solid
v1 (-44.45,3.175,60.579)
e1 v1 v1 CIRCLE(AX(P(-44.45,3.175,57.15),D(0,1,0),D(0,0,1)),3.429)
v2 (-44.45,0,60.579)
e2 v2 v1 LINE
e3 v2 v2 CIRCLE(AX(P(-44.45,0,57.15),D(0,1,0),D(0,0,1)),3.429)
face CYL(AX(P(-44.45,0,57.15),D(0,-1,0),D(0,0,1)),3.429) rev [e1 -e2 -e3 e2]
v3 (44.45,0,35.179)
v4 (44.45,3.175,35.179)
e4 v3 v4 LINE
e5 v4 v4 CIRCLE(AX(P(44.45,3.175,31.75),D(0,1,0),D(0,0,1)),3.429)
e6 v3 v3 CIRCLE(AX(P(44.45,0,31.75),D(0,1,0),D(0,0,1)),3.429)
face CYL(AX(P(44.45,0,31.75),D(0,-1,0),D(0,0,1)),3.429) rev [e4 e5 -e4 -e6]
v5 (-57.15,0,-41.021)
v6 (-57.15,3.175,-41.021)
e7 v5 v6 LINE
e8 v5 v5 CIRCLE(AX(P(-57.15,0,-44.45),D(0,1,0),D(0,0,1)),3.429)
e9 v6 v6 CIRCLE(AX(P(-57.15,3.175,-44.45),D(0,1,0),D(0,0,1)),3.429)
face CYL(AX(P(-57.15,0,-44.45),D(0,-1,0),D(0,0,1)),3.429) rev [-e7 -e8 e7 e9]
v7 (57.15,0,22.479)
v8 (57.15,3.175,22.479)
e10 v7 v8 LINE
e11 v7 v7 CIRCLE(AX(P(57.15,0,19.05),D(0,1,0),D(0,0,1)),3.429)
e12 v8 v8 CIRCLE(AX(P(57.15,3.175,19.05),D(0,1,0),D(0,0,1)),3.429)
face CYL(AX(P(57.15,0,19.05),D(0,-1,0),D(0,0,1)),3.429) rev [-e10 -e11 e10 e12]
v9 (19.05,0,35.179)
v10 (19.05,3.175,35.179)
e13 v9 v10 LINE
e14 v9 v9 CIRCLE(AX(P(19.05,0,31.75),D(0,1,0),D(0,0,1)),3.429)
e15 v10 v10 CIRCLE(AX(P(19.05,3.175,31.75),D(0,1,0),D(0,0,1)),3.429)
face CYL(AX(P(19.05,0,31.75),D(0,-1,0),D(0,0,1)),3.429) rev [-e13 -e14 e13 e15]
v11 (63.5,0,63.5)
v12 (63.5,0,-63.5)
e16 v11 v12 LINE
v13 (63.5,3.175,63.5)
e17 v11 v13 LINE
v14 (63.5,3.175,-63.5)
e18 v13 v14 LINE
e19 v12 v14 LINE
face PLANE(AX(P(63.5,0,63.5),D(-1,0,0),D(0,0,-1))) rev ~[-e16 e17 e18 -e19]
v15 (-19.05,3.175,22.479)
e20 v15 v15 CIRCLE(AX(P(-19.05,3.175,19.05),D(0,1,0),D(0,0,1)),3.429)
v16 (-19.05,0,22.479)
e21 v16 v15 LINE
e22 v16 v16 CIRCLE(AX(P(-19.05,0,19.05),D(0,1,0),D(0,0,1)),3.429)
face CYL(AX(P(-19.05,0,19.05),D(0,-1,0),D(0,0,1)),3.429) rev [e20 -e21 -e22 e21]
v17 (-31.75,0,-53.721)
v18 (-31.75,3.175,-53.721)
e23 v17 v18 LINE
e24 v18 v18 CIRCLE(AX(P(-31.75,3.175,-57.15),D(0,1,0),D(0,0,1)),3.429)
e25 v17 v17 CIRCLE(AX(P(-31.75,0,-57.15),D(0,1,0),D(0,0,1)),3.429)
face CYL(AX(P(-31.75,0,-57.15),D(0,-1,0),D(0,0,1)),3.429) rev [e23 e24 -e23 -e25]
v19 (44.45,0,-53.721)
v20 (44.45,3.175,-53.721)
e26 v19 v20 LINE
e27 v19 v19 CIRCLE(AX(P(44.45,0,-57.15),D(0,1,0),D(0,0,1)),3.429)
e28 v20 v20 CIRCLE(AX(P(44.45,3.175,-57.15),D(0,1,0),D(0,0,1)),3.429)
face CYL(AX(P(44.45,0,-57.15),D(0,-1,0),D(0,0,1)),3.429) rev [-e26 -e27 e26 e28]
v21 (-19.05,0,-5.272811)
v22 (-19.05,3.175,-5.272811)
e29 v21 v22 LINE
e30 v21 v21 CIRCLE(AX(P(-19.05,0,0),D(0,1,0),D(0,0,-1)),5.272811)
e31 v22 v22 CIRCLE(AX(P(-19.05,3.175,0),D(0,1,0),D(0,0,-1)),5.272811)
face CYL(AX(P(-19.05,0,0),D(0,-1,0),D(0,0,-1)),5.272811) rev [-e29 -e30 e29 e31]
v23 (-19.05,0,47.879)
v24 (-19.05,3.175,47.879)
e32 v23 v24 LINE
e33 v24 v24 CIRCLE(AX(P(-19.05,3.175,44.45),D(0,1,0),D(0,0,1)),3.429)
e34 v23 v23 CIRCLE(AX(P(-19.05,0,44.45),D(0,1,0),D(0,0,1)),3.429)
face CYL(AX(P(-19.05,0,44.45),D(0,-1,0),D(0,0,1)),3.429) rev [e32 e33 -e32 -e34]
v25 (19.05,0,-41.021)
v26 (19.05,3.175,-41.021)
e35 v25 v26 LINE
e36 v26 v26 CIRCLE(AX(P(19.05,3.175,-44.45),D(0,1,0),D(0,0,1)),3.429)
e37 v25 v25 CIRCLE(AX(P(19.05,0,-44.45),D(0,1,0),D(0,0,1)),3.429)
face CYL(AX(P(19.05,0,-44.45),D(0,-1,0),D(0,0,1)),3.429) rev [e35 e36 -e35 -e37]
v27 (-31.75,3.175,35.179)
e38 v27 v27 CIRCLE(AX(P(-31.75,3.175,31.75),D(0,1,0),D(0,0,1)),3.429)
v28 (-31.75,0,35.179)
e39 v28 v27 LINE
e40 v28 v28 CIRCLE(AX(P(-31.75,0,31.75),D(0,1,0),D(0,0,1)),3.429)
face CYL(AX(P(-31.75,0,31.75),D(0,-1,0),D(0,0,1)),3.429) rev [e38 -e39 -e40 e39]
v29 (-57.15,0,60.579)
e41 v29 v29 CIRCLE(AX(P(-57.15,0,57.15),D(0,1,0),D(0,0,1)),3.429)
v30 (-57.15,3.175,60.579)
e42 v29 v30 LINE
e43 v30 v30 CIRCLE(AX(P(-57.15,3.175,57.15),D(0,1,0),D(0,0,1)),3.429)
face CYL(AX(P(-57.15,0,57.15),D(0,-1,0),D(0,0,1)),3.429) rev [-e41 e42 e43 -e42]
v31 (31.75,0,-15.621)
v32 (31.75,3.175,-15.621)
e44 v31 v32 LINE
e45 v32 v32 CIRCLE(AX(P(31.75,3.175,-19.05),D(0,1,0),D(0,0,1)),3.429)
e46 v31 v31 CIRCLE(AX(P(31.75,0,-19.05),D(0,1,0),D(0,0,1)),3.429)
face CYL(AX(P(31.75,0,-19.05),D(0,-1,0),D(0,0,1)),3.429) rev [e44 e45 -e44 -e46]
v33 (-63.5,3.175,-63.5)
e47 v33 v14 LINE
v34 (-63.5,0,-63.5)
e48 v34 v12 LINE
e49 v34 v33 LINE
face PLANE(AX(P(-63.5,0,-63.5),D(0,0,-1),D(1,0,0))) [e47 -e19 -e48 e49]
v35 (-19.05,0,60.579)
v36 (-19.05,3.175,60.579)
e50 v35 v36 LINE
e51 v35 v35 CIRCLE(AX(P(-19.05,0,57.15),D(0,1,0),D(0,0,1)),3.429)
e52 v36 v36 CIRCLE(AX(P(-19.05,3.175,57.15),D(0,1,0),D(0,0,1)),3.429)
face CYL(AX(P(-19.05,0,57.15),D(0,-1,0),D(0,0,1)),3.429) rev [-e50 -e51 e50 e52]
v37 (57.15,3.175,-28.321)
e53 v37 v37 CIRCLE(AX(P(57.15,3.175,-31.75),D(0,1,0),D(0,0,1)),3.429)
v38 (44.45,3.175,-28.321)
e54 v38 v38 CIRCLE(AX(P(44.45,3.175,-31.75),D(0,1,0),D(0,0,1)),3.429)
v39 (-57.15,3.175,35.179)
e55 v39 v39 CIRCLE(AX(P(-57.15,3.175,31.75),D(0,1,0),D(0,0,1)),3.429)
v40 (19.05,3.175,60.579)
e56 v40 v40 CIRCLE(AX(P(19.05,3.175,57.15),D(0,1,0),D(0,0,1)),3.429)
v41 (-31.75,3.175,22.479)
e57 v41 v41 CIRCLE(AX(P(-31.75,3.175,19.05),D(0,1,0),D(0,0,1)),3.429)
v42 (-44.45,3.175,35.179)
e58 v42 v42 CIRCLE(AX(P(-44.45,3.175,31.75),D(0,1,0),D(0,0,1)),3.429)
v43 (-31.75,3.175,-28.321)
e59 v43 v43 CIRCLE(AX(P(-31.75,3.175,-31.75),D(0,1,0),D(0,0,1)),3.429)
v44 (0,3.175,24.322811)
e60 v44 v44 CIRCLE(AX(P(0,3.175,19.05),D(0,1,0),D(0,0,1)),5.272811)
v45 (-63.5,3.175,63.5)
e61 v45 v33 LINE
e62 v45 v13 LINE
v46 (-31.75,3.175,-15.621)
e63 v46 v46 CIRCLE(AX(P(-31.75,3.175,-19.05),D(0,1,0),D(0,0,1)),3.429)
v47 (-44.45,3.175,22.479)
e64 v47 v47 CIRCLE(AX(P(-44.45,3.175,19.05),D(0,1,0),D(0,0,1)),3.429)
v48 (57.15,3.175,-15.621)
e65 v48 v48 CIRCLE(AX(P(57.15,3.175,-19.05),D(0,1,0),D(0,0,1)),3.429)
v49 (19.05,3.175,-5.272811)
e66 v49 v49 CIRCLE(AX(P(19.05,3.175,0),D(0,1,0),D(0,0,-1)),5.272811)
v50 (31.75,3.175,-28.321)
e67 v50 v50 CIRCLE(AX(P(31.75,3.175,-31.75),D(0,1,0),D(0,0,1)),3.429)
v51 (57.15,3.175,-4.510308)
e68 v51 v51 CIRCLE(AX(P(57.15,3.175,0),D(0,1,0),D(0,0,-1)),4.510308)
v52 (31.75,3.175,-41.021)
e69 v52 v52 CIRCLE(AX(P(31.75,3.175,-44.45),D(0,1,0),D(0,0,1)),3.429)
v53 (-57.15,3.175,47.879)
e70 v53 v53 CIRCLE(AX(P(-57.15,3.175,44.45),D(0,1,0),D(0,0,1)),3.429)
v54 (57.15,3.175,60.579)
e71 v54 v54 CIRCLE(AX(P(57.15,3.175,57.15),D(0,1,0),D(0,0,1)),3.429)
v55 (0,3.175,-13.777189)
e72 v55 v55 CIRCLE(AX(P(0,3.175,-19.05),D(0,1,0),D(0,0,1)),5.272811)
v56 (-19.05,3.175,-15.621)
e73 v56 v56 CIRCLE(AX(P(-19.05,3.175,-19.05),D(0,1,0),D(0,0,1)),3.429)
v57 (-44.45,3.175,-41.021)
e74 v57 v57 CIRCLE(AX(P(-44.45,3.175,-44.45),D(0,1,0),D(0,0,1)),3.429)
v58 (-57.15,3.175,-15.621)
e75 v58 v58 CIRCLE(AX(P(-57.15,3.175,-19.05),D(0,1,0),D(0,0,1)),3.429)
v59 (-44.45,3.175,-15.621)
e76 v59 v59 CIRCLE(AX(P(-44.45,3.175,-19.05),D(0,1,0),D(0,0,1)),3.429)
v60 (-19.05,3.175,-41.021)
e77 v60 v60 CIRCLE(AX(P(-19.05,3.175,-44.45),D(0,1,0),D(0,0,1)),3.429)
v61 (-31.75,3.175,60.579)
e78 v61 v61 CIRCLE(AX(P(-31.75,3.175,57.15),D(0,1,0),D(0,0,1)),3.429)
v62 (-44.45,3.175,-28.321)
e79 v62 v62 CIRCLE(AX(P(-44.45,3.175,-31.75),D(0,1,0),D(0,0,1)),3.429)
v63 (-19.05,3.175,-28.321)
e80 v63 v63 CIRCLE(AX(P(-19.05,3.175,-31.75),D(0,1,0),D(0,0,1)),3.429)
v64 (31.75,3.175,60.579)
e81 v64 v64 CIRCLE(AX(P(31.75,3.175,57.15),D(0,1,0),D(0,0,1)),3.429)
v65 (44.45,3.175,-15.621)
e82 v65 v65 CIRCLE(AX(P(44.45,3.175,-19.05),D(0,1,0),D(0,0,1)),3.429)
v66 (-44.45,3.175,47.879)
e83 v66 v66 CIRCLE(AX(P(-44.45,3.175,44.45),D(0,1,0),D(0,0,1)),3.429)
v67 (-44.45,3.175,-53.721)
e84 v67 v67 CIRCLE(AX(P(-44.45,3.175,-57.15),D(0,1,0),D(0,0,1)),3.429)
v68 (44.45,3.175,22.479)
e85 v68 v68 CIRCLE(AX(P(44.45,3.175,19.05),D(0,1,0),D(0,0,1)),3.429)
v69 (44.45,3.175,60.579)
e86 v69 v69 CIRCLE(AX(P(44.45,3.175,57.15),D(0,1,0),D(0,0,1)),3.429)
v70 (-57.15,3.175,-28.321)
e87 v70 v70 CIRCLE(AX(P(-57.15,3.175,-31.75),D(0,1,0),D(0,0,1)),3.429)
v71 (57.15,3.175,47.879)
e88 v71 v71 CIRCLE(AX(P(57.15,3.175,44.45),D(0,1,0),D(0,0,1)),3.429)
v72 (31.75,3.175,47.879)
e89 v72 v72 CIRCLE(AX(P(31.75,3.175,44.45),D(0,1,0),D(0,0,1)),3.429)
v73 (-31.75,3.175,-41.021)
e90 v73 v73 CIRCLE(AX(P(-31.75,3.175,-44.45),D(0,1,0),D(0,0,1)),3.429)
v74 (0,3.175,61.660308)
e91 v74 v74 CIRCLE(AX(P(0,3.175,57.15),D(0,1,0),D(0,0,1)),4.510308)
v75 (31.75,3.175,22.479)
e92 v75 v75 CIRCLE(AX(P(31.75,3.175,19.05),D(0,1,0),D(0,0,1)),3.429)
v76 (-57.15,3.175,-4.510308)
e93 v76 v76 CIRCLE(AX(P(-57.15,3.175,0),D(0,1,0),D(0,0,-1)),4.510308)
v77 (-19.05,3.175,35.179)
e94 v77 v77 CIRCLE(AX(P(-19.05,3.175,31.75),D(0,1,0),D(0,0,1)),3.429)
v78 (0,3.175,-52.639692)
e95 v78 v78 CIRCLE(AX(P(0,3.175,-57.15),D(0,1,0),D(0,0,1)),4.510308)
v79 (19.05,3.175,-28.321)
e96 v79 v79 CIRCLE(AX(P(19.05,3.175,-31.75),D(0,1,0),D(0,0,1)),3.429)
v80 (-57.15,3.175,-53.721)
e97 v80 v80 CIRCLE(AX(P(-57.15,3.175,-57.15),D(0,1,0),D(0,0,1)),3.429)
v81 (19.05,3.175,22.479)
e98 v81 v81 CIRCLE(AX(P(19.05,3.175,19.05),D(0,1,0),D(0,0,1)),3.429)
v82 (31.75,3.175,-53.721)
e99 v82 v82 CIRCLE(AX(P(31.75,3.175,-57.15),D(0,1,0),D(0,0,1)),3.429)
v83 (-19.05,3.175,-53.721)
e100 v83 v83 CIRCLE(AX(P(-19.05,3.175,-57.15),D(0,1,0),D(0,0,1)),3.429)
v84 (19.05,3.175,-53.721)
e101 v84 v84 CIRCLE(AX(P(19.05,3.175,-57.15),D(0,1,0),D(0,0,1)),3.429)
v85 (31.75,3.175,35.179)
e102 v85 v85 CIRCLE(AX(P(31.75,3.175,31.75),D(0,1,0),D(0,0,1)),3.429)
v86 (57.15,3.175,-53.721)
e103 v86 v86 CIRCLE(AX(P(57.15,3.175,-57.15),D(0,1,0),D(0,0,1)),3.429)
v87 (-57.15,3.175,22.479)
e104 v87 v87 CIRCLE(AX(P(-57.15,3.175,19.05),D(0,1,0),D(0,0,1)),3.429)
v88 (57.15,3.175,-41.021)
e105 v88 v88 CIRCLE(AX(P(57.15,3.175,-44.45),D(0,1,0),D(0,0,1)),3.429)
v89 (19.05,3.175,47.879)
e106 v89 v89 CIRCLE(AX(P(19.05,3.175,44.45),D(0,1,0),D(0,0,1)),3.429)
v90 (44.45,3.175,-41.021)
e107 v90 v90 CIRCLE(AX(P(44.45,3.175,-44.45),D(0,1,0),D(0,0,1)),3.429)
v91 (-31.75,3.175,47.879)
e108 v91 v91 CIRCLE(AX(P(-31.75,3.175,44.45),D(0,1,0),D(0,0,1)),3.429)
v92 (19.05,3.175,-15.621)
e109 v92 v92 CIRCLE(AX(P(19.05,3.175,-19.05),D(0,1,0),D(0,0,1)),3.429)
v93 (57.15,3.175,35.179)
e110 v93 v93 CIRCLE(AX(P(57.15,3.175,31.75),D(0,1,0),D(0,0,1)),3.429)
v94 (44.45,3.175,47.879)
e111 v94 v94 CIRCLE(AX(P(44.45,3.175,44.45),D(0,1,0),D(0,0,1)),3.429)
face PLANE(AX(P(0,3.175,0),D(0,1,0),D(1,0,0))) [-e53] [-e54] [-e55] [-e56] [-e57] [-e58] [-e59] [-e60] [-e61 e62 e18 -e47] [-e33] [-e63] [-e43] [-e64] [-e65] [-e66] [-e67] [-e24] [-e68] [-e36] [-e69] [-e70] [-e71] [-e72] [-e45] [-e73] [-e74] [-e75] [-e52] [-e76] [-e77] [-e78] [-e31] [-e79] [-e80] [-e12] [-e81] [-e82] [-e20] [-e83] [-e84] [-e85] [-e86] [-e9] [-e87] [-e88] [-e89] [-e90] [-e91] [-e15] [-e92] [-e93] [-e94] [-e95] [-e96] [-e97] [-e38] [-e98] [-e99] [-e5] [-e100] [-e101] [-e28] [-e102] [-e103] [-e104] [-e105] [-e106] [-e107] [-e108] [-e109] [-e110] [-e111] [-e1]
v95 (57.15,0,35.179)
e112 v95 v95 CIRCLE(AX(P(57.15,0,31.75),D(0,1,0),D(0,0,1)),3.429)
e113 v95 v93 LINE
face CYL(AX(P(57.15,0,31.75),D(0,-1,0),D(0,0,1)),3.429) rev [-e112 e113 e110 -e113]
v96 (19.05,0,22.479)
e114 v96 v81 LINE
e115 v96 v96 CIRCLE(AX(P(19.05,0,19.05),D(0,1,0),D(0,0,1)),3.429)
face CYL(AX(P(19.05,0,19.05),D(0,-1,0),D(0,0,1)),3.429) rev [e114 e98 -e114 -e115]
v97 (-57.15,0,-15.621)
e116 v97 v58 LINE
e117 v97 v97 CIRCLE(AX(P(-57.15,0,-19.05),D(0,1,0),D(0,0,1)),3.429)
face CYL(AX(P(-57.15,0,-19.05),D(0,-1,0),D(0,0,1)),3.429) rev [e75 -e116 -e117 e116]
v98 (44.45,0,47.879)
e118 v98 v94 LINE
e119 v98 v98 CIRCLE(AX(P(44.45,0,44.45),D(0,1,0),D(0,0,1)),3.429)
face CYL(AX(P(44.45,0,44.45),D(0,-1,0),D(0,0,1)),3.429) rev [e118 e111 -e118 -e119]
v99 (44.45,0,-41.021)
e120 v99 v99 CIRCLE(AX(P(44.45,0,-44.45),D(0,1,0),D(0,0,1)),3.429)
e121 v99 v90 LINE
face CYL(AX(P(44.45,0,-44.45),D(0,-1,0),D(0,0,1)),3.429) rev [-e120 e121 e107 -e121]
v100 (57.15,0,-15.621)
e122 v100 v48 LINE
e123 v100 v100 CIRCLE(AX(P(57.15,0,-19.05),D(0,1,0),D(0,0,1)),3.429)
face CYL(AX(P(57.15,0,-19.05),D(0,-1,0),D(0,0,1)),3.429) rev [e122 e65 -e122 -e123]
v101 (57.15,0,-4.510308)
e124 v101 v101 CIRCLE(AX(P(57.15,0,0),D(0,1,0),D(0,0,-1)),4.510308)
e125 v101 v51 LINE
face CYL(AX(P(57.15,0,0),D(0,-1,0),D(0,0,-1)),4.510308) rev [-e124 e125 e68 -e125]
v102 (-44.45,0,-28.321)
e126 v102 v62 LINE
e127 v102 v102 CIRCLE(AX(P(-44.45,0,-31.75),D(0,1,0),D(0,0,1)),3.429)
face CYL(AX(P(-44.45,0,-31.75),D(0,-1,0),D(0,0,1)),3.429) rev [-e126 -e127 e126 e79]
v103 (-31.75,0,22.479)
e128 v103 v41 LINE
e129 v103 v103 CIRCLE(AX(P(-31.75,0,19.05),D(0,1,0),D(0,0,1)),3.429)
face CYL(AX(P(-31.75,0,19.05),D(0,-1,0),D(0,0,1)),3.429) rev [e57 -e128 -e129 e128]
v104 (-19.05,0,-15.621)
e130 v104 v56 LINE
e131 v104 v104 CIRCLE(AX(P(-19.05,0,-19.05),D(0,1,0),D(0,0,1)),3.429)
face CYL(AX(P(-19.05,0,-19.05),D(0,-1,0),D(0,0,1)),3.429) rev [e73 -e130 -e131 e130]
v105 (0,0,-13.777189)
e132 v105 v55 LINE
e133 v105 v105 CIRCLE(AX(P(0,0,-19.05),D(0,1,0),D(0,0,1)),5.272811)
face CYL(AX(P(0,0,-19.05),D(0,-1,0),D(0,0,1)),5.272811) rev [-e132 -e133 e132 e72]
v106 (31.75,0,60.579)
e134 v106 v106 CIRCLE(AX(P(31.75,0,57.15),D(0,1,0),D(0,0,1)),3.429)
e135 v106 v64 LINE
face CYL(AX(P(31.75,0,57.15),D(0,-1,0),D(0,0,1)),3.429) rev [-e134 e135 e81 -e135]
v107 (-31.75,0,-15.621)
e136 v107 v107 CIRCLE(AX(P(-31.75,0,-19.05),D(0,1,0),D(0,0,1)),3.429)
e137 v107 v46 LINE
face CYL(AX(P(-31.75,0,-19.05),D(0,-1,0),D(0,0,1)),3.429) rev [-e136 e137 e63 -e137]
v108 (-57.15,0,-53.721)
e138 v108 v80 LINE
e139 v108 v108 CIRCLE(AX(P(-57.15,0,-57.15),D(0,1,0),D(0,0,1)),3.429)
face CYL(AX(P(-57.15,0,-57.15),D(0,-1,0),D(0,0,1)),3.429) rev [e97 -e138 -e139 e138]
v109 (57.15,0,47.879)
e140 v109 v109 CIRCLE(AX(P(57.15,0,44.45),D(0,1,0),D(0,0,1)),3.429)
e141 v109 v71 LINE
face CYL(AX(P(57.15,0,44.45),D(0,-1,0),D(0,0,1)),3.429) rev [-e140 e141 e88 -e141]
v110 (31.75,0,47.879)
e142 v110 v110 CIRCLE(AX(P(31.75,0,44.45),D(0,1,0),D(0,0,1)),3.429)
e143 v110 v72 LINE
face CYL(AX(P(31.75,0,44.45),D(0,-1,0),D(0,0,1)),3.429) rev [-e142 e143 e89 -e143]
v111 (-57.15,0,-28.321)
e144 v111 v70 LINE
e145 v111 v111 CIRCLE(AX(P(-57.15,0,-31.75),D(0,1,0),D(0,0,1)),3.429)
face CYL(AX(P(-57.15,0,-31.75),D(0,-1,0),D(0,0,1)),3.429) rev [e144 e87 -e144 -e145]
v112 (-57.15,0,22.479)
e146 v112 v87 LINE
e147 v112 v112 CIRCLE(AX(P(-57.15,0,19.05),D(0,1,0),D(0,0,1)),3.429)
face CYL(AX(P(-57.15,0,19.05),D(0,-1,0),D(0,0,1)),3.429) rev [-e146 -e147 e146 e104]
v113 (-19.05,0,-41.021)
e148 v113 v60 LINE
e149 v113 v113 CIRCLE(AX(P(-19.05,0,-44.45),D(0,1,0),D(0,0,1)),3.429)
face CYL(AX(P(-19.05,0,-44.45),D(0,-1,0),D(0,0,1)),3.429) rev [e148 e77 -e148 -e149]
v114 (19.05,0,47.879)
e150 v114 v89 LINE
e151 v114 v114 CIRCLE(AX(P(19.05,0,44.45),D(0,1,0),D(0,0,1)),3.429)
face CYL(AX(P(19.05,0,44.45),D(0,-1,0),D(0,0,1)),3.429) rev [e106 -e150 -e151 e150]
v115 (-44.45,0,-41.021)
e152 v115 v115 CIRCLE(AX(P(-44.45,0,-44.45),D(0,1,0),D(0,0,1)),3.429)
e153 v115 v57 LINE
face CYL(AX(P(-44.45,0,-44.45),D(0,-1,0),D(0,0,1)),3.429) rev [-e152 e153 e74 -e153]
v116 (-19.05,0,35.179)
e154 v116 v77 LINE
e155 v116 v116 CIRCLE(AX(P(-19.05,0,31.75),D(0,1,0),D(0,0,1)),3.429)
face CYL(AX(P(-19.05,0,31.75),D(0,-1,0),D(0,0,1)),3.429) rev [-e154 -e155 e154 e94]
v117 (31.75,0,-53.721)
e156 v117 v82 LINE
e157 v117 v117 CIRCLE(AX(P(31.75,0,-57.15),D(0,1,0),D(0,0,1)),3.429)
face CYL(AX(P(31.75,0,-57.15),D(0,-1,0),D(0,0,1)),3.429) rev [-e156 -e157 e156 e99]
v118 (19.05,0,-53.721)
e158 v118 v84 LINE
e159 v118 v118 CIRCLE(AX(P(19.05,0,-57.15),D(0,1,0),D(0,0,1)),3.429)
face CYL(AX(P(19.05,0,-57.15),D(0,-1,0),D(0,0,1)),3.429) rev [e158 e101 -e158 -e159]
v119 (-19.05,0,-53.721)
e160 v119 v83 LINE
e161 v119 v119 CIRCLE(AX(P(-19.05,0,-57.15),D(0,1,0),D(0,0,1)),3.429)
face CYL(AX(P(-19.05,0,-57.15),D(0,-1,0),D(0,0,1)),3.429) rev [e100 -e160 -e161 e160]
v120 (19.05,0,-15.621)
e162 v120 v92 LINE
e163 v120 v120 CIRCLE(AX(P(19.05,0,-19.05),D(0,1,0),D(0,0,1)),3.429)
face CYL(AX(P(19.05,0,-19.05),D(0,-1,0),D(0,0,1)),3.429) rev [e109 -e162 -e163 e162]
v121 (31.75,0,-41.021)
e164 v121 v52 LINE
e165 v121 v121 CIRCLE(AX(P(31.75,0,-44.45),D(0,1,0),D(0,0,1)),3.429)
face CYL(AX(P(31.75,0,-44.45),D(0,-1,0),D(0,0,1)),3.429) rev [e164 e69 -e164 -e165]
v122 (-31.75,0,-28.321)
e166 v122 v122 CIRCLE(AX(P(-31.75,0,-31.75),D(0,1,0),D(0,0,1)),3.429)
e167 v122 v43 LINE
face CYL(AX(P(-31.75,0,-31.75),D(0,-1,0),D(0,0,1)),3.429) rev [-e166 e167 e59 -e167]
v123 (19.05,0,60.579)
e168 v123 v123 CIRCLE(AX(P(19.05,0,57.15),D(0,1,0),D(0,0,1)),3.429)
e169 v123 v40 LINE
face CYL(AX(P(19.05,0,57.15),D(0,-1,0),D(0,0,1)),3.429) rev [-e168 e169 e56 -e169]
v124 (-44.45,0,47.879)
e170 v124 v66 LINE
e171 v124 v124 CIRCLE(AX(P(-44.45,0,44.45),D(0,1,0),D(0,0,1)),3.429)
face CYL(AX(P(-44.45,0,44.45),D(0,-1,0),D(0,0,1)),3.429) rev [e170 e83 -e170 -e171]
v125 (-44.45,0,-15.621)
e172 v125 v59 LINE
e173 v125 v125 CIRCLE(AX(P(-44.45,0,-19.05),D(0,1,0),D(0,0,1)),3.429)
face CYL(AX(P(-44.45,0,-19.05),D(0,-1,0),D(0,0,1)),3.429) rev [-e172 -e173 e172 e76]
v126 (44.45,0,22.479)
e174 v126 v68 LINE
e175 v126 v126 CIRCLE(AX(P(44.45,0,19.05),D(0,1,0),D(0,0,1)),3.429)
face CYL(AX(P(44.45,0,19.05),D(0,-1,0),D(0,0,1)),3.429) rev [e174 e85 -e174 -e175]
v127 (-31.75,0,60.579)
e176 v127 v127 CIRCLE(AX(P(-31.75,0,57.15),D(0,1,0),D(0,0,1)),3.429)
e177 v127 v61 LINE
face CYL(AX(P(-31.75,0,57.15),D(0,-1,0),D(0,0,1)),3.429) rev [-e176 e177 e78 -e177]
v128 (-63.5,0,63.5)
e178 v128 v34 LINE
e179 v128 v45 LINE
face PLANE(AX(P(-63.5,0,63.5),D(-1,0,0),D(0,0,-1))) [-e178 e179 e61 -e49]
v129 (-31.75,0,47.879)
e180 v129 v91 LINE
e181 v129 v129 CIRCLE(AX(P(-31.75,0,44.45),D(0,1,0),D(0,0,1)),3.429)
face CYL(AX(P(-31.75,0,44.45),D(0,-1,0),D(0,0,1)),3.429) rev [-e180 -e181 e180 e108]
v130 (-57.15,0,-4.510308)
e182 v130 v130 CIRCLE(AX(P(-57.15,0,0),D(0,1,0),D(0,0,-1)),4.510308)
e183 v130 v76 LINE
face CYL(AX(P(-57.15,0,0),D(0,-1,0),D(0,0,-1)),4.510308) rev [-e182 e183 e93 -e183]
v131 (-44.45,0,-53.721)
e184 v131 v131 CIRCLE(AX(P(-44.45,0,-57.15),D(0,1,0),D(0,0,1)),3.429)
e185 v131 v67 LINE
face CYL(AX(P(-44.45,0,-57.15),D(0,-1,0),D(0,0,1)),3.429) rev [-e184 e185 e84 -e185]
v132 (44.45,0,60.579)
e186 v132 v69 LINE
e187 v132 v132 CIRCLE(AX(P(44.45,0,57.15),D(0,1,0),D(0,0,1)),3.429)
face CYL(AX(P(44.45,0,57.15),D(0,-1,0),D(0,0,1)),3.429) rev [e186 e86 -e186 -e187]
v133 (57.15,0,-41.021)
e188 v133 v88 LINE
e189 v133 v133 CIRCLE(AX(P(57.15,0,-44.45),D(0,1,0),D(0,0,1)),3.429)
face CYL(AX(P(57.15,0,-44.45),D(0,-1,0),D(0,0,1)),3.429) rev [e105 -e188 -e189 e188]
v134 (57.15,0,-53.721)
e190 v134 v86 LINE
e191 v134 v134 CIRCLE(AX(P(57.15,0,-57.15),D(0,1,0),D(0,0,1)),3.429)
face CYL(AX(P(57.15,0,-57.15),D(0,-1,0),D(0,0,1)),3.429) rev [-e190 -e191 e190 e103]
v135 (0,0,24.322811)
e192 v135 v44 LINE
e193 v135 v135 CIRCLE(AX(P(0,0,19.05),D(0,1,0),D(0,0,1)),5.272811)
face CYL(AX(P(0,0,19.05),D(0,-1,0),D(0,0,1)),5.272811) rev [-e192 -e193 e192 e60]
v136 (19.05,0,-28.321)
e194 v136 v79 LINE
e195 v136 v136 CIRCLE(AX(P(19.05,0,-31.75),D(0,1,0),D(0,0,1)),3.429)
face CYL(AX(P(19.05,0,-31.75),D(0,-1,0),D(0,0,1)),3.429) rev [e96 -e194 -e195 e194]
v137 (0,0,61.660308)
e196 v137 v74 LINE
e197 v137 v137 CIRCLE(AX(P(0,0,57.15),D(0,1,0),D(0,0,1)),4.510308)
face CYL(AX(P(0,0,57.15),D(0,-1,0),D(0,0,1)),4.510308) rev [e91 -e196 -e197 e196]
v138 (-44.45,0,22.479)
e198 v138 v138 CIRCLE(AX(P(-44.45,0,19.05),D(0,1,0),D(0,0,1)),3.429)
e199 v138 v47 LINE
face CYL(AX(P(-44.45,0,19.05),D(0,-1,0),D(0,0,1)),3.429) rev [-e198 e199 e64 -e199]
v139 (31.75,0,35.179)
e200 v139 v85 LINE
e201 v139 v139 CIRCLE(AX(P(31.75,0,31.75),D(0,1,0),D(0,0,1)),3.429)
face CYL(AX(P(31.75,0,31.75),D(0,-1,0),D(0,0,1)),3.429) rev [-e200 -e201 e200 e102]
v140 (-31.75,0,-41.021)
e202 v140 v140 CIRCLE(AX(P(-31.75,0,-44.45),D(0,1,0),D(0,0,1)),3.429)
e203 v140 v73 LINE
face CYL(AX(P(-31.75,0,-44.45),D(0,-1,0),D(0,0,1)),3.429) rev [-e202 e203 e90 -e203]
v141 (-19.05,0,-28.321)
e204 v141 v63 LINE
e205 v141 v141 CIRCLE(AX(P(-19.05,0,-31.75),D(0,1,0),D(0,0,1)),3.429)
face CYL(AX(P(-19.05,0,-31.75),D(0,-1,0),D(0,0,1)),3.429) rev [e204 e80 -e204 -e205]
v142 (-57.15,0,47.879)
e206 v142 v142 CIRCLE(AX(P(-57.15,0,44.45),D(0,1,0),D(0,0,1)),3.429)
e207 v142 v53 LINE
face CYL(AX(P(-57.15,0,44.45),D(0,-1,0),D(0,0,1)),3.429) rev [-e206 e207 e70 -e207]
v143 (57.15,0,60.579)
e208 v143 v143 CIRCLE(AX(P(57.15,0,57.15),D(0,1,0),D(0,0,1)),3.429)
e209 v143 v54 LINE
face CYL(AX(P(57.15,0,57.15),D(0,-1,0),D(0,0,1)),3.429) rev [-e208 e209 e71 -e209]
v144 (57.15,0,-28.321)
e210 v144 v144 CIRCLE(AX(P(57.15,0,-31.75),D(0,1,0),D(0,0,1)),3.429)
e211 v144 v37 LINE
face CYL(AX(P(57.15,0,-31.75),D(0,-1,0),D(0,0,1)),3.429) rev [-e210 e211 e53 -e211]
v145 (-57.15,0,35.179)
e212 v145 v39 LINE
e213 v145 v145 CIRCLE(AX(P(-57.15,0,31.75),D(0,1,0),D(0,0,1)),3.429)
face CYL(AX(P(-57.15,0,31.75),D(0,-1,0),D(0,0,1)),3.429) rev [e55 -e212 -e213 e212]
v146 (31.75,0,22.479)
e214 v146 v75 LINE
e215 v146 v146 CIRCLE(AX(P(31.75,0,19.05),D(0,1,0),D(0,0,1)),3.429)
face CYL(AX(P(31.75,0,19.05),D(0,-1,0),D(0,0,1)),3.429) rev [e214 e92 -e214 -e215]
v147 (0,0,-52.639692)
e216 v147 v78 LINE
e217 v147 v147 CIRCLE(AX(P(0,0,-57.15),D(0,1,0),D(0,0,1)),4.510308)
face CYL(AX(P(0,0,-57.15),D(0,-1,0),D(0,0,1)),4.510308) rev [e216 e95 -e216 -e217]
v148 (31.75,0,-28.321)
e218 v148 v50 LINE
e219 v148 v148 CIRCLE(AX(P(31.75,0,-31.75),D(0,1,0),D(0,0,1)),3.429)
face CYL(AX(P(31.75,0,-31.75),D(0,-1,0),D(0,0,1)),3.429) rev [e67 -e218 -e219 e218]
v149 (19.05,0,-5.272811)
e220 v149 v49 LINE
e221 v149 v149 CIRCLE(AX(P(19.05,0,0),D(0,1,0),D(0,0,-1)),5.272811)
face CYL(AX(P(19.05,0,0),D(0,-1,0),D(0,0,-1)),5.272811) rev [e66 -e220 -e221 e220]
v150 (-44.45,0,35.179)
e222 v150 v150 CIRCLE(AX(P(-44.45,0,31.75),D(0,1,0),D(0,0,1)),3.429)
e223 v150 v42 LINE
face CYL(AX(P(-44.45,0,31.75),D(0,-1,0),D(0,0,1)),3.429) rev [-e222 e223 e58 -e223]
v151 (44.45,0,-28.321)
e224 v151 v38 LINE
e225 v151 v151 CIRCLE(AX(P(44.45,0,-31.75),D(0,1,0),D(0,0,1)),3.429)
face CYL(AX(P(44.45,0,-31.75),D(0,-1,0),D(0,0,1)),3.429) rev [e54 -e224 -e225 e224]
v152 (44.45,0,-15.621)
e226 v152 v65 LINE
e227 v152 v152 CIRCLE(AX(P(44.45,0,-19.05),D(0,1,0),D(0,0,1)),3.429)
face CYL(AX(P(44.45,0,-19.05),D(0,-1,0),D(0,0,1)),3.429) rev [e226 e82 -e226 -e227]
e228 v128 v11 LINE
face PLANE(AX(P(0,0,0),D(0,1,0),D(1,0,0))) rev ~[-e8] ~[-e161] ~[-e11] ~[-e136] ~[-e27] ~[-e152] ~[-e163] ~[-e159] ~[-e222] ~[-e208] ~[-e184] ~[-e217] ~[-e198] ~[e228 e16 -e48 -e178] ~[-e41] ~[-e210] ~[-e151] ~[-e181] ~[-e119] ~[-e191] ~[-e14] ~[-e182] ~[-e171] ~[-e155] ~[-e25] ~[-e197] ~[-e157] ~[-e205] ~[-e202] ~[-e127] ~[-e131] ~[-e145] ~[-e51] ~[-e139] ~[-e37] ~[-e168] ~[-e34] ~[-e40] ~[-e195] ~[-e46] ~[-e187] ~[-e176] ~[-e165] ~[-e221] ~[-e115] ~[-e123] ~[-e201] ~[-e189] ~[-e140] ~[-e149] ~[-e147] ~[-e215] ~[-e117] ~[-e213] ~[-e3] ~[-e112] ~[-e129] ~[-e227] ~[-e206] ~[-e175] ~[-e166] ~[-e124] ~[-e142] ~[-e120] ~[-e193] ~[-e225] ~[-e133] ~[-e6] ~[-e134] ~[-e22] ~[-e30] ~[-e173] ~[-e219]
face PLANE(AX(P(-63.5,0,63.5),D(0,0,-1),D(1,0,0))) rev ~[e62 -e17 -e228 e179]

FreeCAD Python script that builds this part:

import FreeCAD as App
import Part
import Sketcher
from FreeCAD import Vector
Q = App.Units.Quantity

doc = App.newDocument("Part")
params = doc.addObject("Spreadsheet::Sheet", "Params")
for row, (alias, value) in enumerate([
    ("sketch1_diameter", "0.27 in"),
    ("sketch1_width", "5 in"),
    ("pad1_length", "0.125 in"),
], start=1):
    params.set(f"A{row}", alias)
    params.set(f"B{row}", "=" + value)
    params.setAlias(f"B{row}", alias)

body = doc.addObject("PartDesign::Body", "Body")

# Sketch on XZ plane
sketch1 = body.newObject("Sketcher::SketchObject", "Sketch")
sketch1.AttachmentSupport = (doc.getObject("XZ_Plane"), [""])
sketch1.MapMode = "FlatFace"
sketch1.addGeometry(Part.LineSegment(Vector(-63.5, -63.5, 0), Vector(-63.5, 63.5, 0)), False)
sketch1.addGeometry(Part.LineSegment(Vector(-63.5, 63.5, 0), Vector(63.5, 63.5, 0)), False)
sketch1.addGeometry(Part.LineSegment(Vector(63.5, 63.5, 0), Vector(63.5, -63.5, 0)), False)
sketch1.addGeometry(Part.LineSegment(Vector(63.5, -63.5, 0), Vector(-63.5, -63.5, 0)), False)
sketch1.addGeometry(Part.Circle(Vector(-57.1, 57.1, 0), Vector(0, 0, 1), 3.4), False)
sketch1.addGeometry(Part.Circle(Vector(-44.5, 57.1, 0), Vector(0, 0, 1), 3.4), False)
sketch1.addGeometry(Part.Circle(Vector(-31.8, 57.1, 0), Vector(0, 0, 1), 3.4), False)
sketch1.addGeometry(Part.Circle(Vector(-57.1, 44.5, 0), Vector(0, 0, 1), 3.4), False)
sketch1.addGeometry(Part.Circle(Vector(-57.1, 31.8, 0), Vector(0, 0, 1), 3.4), False)
sketch1.addGeometry(Part.Circle(Vector(-44.5, 44.5, 0), Vector(0, 0, 1), 3.4), False)
sketch1.addGeometry(Part.Circle(Vector(-31.8, 44.5, 0), Vector(0, 0, 1), 3.4), False)
sketch1.addGeometry(Part.Circle(Vector(-44.5, 31.8, 0), Vector(0, 0, 1), 3.4), False)
sketch1.addGeometry(Part.Circle(Vector(-31.8, 31.8, 0), Vector(0, 0, 1), 3.4), False)
sketch1.addGeometry(Part.Circle(Vector(-19.1, 57.1, 0), Vector(0, 0, 1), 3.4), False)
sketch1.addGeometry(Part.Circle(Vector(0, 57.1, 0), Vector(0, 0, 1), 4.5), False)
sketch1.addGeometry(Part.Circle(Vector(-19.1, 44.5, 0), Vector(0, 0, 1), 3.4), False)
sketch1.addGeometry(Part.Circle(Vector(-19.1, 31.8, 0), Vector(0, 0, 1), 3.4), False)
sketch1.addGeometry(Part.Circle(Vector(-57.1, 19.1, 0), Vector(0, 0, 1), 3.4), False)
sketch1.addGeometry(Part.Circle(Vector(-44.5, 19.1, 0), Vector(0, 0, 1), 3.4), False)
sketch1.addGeometry(Part.Circle(Vector(-31.8, 19.1, 0), Vector(0, 0, 1), 3.4), False)
sketch1.addGeometry(Part.Circle(Vector(-57.1, 0, 0), Vector(0, 0, 1), 4.5), False)
sketch1.addGeometry(Part.Circle(Vector(-19.1, 19.1, 0), Vector(0, 0, 1), 3.4), False)
sketch1.addGeometry(Part.Circle(Vector(0, 19.1, 0), Vector(0, 0, 1), 5.3), False)
sketch1.addGeometry(Part.Circle(Vector(-19.1, 0, 0), Vector(0, 0, 1), 5.3), False)
sketch1.addGeometry(Part.Circle(Vector(19.1, 57.1, 0), Vector(0, 0, 1), 3.4), False)
sketch1.addGeometry(Part.Circle(Vector(19.1, 44.5, 0), Vector(0, 0, 1), 3.4), False)
sketch1.addGeometry(Part.Circle(Vector(19.1, 31.8, 0), Vector(0, 0, 1), 3.4), False)
sketch1.addGeometry(Part.Circle(Vector(31.8, 57.1, 0), Vector(0, 0, 1), 3.4), False)
sketch1.addGeometry(Part.Circle(Vector(44.5, 57.1, 0), Vector(0, 0, 1), 3.4), False)
sketch1.addGeometry(Part.Circle(Vector(57.1, 57.1, 0), Vector(0, 0, 1), 3.4), False)
sketch1.addGeometry(Part.Circle(Vector(31.8, 44.5, 0), Vector(0, 0, 1), 3.4), False)
sketch1.addGeometry(Part.Circle(Vector(44.5, 44.5, 0), Vector(0, 0, 1), 3.4), False)
sketch1.addGeometry(Part.Circle(Vector(31.8, 31.8, 0), Vector(0, 0, 1), 3.4), False)
sketch1.addGeometry(Part.Circle(Vector(44.5, 31.8, 0), Vector(0, 0, 1), 3.4), False)
sketch1.addGeometry(Part.Circle(Vector(57.1, 44.5, 0), Vector(0, 0, 1), 3.4), False)
sketch1.addGeometry(Part.Circle(Vector(57.1, 31.8, 0), Vector(0, 0, 1), 3.4), False)
sketch1.addGeometry(Part.Circle(Vector(19.1, 19.1, 0), Vector(0, 0, 1), 3.4), False)
sketch1.addGeometry(Part.Circle(Vector(19.1, 0, 0), Vector(0, 0, 1), 5.3), False)
sketch1.addGeometry(Part.Circle(Vector(31.8, 19.1, 0), Vector(0, 0, 1), 3.4), False)
sketch1.addGeometry(Part.Circle(Vector(44.5, 19.1, 0), Vector(0, 0, 1), 3.4), False)
sketch1.addGeometry(Part.Circle(Vector(57.1, 19.1, 0), Vector(0, 0, 1), 3.4), False)
sketch1.addGeometry(Part.Circle(Vector(57.1, 0, 0), Vector(0, 0, 1), 4.5), False)
sketch1.addGeometry(Part.Circle(Vector(-57.1, -19.1, 0), Vector(0, 0, 1), 3.4), False)
sketch1.addGeometry(Part.Circle(Vector(-44.5, -19.1, 0), Vector(0, 0, 1), 3.4), False)
sketch1.addGeometry(Part.Circle(Vector(-31.8, -19.1, 0), Vector(0, 0, 1), 3.4), False)
sketch1.addGeometry(Part.Circle(Vector(-19.1, -19.1, 0), Vector(0, 0, 1), 3.4), False)
sketch1.addGeometry(Part.Circle(Vector(0, -19.1, 0), Vector(0, 0, 1), 5.3), False)
sketch1.addGeometry(Part.Circle(Vector(-57.1, -31.8, 0), Vector(0, 0, 1), 3.4), False)
sketch1.addGeometry(Part.Circle(Vector(-57.1, -44.5, 0), Vector(0, 0, 1), 3.4), False)
sketch1.addGeometry(Part.Circle(Vector(-44.5, -31.8, 0), Vector(0, 0, 1), 3.4), False)
sketch1.addGeometry(Part.Circle(Vector(-31.8, -31.8, 0), Vector(0, 0, 1), 3.4), False)
sketch1.addGeometry(Part.Circle(Vector(-44.5, -44.5, 0), Vector(0, 0, 1), 3.4), False)
sketch1.addGeometry(Part.Circle(Vector(-31.8, -44.5, 0), Vector(0, 0, 1), 3.4), False)
sketch1.addGeometry(Part.Circle(Vector(-57.1, -57.1, 0), Vector(0, 0, 1), 3.4), False)
sketch1.addGeometry(Part.Circle(Vector(-44.5, -57.1, 0), Vector(0, 0, 1), 3.4), False)
sketch1.addGeometry(Part.Circle(Vector(-31.8, -57.1, 0), Vector(0, 0, 1), 3.4), False)
sketch1.addGeometry(Part.Circle(Vector(-19.1, -31.8, 0), Vector(0, 0, 1), 3.4), False)
sketch1.addGeometry(Part.Circle(Vector(-19.1, -44.5, 0), Vector(0, 0, 1), 3.4), False)
sketch1.addGeometry(Part.Circle(Vector(-19.1, -57.1, 0), Vector(0, 0, 1), 3.4), False)
sketch1.addGeometry(Part.Circle(Vector(0, -57.1, 0), Vector(0, 0, 1), 4.5), False)
sketch1.addGeometry(Part.Circle(Vector(19.1, -19.1, 0), Vector(0, 0, 1), 3.4), False)
sketch1.addGeometry(Part.Circle(Vector(31.8, -19.1, 0), Vector(0, 0, 1), 3.4), False)
sketch1.addGeometry(Part.Circle(Vector(44.5, -19.1, 0), Vector(0, 0, 1), 3.4), False)
sketch1.addGeometry(Part.Circle(Vector(57.1, -19.1, 0), Vector(0, 0, 1), 3.4), False)
sketch1.addGeometry(Part.Circle(Vector(19.1, -31.8, 0), Vector(0, 0, 1), 3.4), False)
sketch1.addGeometry(Part.Circle(Vector(19.1, -44.5, 0), Vector(0, 0, 1), 3.4), False)
sketch1.addGeometry(Part.Circle(Vector(19.1, -57.1, 0), Vector(0, 0, 1), 3.4), False)
sketch1.addGeometry(Part.Circle(Vector(31.8, -31.8, 0), Vector(0, 0, 1), 3.4), False)
sketch1.addGeometry(Part.Circle(Vector(44.5, -31.8, 0), Vector(0, 0, 1), 3.4), False)
sketch1.addGeometry(Part.Circle(Vector(31.8, -44.5, 0), Vector(0, 0, 1), 3.4), False)
sketch1.addGeometry(Part.Circle(Vector(44.5, -44.5, 0), Vector(0, 0, 1), 3.4), False)
sketch1.addGeometry(Part.Circle(Vector(57.1, -31.8, 0), Vector(0, 0, 1), 3.4), False)
sketch1.addGeometry(Part.Circle(Vector(57.1, -44.5, 0), Vector(0, 0, 1), 3.4), False)
sketch1.addGeometry(Part.Circle(Vector(31.8, -57.1, 0), Vector(0, 0, 1), 3.4), False)
sketch1.addGeometry(Part.Circle(Vector(44.5, -57.1, 0), Vector(0, 0, 1), 3.4), False)
sketch1.addGeometry(Part.Circle(Vector(57.1, -57.1, 0), Vector(0, 0, 1), 3.4), False)
sketch1.addConstraint(Sketcher.Constraint("Coincident", 0, 2, 1, 1))
sketch1.addConstraint(Sketcher.Constraint("Coincident", 1, 2, 2, 1))
sketch1.addConstraint(Sketcher.Constraint("Coincident", 2, 2, 3, 1))
sketch1.addConstraint(Sketcher.Constraint("Coincident", 3, 2, 0, 1))
sketch1.addConstraint(Sketcher.Constraint("Vertical", 0))
sketch1.addConstraint(Sketcher.Constraint("Horizontal", 1))
sketch1.addConstraint(Sketcher.Constraint("Vertical", 2))
sketch1.addConstraint(Sketcher.Constraint("Horizontal", 3))
sketch1.addConstraint(Sketcher.Constraint("Equal", 4, 5))
sketch1.addConstraint(Sketcher.Constraint("Equal", 5, 6))
sketch1.addConstraint(Sketcher.Constraint("Equal", 6, 7))
sketch1.addConstraint(Sketcher.Constraint("Equal", 7, 8))
sketch1.addConstraint(Sketcher.Constraint("Equal", 8, 9))
sketch1.addConstraint(Sketcher.Constraint("Equal", 9, 10))
sketch1.addConstraint(Sketcher.Constraint("Equal", 10, 11))
sketch1.addConstraint(Sketcher.Constraint("Equal", 11, 12))
sketch1.addConstraint(Sketcher.Constraint("Equal", 12, 13))
sketch1.addConstraint(Sketcher.Constraint("Equal", 13, 15))
sketch1.addConstraint(Sketcher.Constraint("Equal", 15, 16))
sketch1.addConstraint(Sketcher.Constraint("Equal", 16, 17))
sketch1.addConstraint(Sketcher.Constraint("Equal", 17, 18))
sketch1.addConstraint(Sketcher.Constraint("Equal", 18, 19))
sketch1.addConstraint(Sketcher.Constraint("Equal", 14, 20))
sketch1.addConstraint(Sketcher.Constraint("Equal", 19, 21))
sketch1.addConstraint(Sketcher.Constraint("Equal", 22, 23))
sketch1.addConstraint(Sketcher.Constraint("Equal", 21, 24))
sketch1.addConstraint(Sketcher.Constraint("Equal", 24, 25))
sketch1.addConstraint(Sketcher.Constraint("Equal", 25, 26))
sketch1.addConstraint(Sketcher.Constraint("Equal", 26, 27))
sketch1.addConstraint(Sketcher.Constraint("Equal", 27, 28))
sketch1.addConstraint(Sketcher.Constraint("Equal", 28, 29))
sketch1.addConstraint(Sketcher.Constraint("Equal", 29, 30))
sketch1.addConstraint(Sketcher.Constraint("Equal", 30, 31))
sketch1.addConstraint(Sketcher.Constraint("Equal", 31, 32))
sketch1.addConstraint(Sketcher.Constraint("Equal", 32, 33))
sketch1.addConstraint(Sketcher.Constraint("Equal", 33, 34))
sketch1.addConstraint(Sketcher.Constraint("Equal", 34, 35))
sketch1.addConstraint(Sketcher.Constraint("Equal", 35, 36))
sketch1.addConstraint(Sketcher.Constraint("Equal", 23, 37))
sketch1.addConstraint(Sketcher.Constraint("Equal", 36, 38))
sketch1.addConstraint(Sketcher.Constraint("Equal", 38, 39))
sketch1.addConstraint(Sketcher.Constraint("Equal", 39, 40))
sketch1.addConstraint(Sketcher.Constraint("Equal", 20, 41))
sketch1.addConstraint(Sketcher.Constraint("Equal", 40, 42))
sketch1.addConstraint(Sketcher.Constraint("Equal", 42, 43))
sketch1.addConstraint(Sketcher.Constraint("Equal", 43, 44))
sketch1.addConstraint(Sketcher.Constraint("Equal", 44, 45))
sketch1.addConstraint(Sketcher.Constraint("Equal", 37, 46))
sketch1.addConstraint(Sketcher.Constraint("Equal", 45, 47))
sketch1.addConstraint(Sketcher.Constraint("Equal", 47, 48))
sketch1.addConstraint(Sketcher.Constraint("Equal", 48, 49))
sketch1.addConstraint(Sketcher.Constraint("Equal", 49, 50))
sketch1.addConstraint(Sketcher.Constraint("Equal", 50, 51))
sketch1.addConstraint(Sketcher.Constraint("Equal", 51, 52))
sketch1.addConstraint(Sketcher.Constraint("Equal", 52, 53))
sketch1.addConstraint(Sketcher.Constraint("Equal", 53, 54))
sketch1.addConstraint(Sketcher.Constraint("Equal", 54, 55))
sketch1.addConstraint(Sketcher.Constraint("Equal", 55, 56))
sketch1.addConstraint(Sketcher.Constraint("Equal", 56, 57))
sketch1.addConstraint(Sketcher.Constraint("Equal", 57, 58))
sketch1.addConstraint(Sketcher.Constraint("Equal", 41, 59))
sketch1.addConstraint(Sketcher.Constraint("Equal", 58, 60))
sketch1.addConstraint(Sketcher.Constraint("Equal", 60, 61))
sketch1.addConstraint(Sketcher.Constraint("Equal", 61, 62))
sketch1.addConstraint(Sketcher.Constraint("Equal", 62, 63))
sketch1.addConstraint(Sketcher.Constraint("Equal", 63, 64))
sketch1.addConstraint(Sketcher.Constraint("Equal", 64, 65))
sketch1.addConstraint(Sketcher.Constraint("Equal", 65, 66))
sketch1.addConstraint(Sketcher.Constraint("Equal", 66, 67))
sketch1.addConstraint(Sketcher.Constraint("Equal", 67, 68))
sketch1.addConstraint(Sketcher.Constraint("Equal", 68, 69))
sketch1.addConstraint(Sketcher.Constraint("Equal", 69, 70))
sketch1.addConstraint(Sketcher.Constraint("Equal", 70, 71))
sketch1.addConstraint(Sketcher.Constraint("Equal", 71, 72))
sketch1.addConstraint(Sketcher.Constraint("Equal", 72, 73))
sketch1.addConstraint(Sketcher.Constraint("Equal", 73, 74))
sketch1.addConstraint(Sketcher.Constraint("Equal", 74, 75))
sketch1.addConstraint(Sketcher.Constraint("Symmetric", 23, 3, 37, 3, -1, 1))
sketch1.addConstraint(Sketcher.Constraint("Symmetric", 20, 3, 41, 3, -1, 1))
sketch1.addConstraint(Sketcher.Constraint("Symmetric", 40, 3, 42, 3, -1, 1))
sketch1.addConstraint(Sketcher.Constraint("Symmetric", 39, 3, 43, 3, -1, 1))
sketch1.addConstraint(Sketcher.Constraint("Symmetric", 38, 3, 44, 3, -1, 1))
sketch1.addConstraint(Sketcher.Constraint("Symmetric", 36, 3, 45, 3, -1, 1))
sketch1.addConstraint(Sketcher.Constraint("Symmetric", 22, 3, 46, 3, -1, 1))
sketch1.addConstraint(Sketcher.Constraint("Symmetric", 35, 3, 47, 3, -1, 1))
sketch1.addConstraint(Sketcher.Constraint("Symmetric", 34, 3, 48, 3, -1, 1))
sketch1.addConstraint(Sketcher.Constraint("Symmetric", 33, 3, 49, 3, -1, 1))
sketch1.addConstraint(Sketcher.Constraint("Symmetric", 32, 3, 50, 3, -1, 1))
sketch1.addConstraint(Sketcher.Constraint("Symmetric", 31, 3, 51, 3, -1, 1))
sketch1.addConstraint(Sketcher.Constraint("Symmetric", 30, 3, 52, 3, -1, 1))
sketch1.addConstraint(Sketcher.Constraint("Symmetric", 29, 3, 53, 3, -1, 1))
sketch1.addConstraint(Sketcher.Constraint("Symmetric", 28, 3, 54, 3, -1, 1))
sketch1.addConstraint(Sketcher.Constraint("Symmetric", 27, 3, 55, 3, -1, 1))
sketch1.addConstraint(Sketcher.Constraint("Symmetric", 26, 3, 56, 3, -1, 1))
sketch1.addConstraint(Sketcher.Constraint("Symmetric", 25, 3, 57, 3, -1, 1))
sketch1.addConstraint(Sketcher.Constraint("Symmetric", 24, 3, 58, 3, -1, 1))
sketch1.addConstraint(Sketcher.Constraint("Symmetric", 14, 3, 59, 3, -1, 1))
sketch1.addConstraint(Sketcher.Constraint("Symmetric", 21, 3, 60, 3, -1, 1))
sketch1.addConstraint(Sketcher.Constraint("Symmetric", 19, 3, 61, 3, -1, 1))
sketch1.addConstraint(Sketcher.Constraint("Symmetric", 18, 3, 62, 3, -1, 1))
sketch1.addConstraint(Sketcher.Constraint("Symmetric", 17, 3, 63, 3, -1, 1))
sketch1.addConstraint(Sketcher.Constraint("Symmetric", 16, 3, 64, 3, -1, 1))
sketch1.addConstraint(Sketcher.Constraint("Symmetric", 15, 3, 65, 3, -1, 1))
sketch1.addConstraint(Sketcher.Constraint("Symmetric", 13, 3, 66, 3, -1, 1))
sketch1.addConstraint(Sketcher.Constraint("Symmetric", 12, 3, 67, 3, -1, 1))
sketch1.addConstraint(Sketcher.Constraint("Symmetric", 11, 3, 68, 3, -1, 1))
sketch1.addConstraint(Sketcher.Constraint("Symmetric", 10, 3, 69, 3, -1, 1))
sketch1.addConstraint(Sketcher.Constraint("Symmetric", 9, 3, 70, 3, -1, 1))
sketch1.addConstraint(Sketcher.Constraint("Symmetric", 8, 3, 71, 3, -1, 1))
sketch1.addConstraint(Sketcher.Constraint("Symmetric", 7, 3, 72, 3, -1, 1))
sketch1.addConstraint(Sketcher.Constraint("Symmetric", 6, 3, 73, 3, -1, 1))
sketch1.addConstraint(Sketcher.Constraint("Symmetric", 5, 3, 74, 3, -1, 1))
sketch1.addConstraint(Sketcher.Constraint("Symmetric", 4, 3, 75, 3, -1, 1))
sketch1.addConstraint(Sketcher.Constraint("Symmetric", 0, 2, 2, 2, -1, 1))
sketch1.addConstraint(Sketcher.Constraint("Symmetric", 13, 3, 24, 3, -2))
sketch1.addConstraint(Sketcher.Constraint("Symmetric", 15, 3, 25, 3, -2))
sketch1.addConstraint(Sketcher.Constraint("Symmetric", 16, 3, 26, 3, -2))
sketch1.addConstraint(Sketcher.Constraint("Symmetric", 6, 3, 27, 3, -2))
sketch1.addConstraint(Sketcher.Constraint("Symmetric", 5, 3, 28, 3, -2))
sketch1.addConstraint(Sketcher.Constraint("Symmetric", 4, 3, 29, 3, -2))
sketch1.addConstraint(Sketcher.Constraint("Symmetric", 10, 3, 30, 3, -2))
sketch1.addConstraint(Sketcher.Constraint("Symmetric", 9, 3, 31, 3, -2))
sketch1.addConstraint(Sketcher.Constraint("Symmetric", 12, 3, 32, 3, -2))
sketch1.addConstraint(Sketcher.Constraint("Symmetric", 11, 3, 33, 3, -2))
sketch1.addConstraint(Sketcher.Constraint("Symmetric", 7, 3, 34, 3, -2))
sketch1.addConstraint(Sketcher.Constraint("Symmetric", 8, 3, 35, 3, -2))
sketch1.addConstraint(Sketcher.Constraint("Symmetric", 21, 3, 36, 3, -2))
sketch1.addConstraint(Sketcher.Constraint("Symmetric", 19, 3, 38, 3, -2))
sketch1.addConstraint(Sketcher.Constraint("Symmetric", 18, 3, 39, 3, -2))
sketch1.addConstraint(Sketcher.Constraint("Symmetric", 17, 3, 40, 3, -2))
sketch1.addConstraint(Sketcher.Constraint("PointOnObject", 14, 3, -2))
sketch1.addConstraint(Sketcher.Constraint("PointOnObject", 20, 3, -1))
sketch1.addConstraint(Sketcher.Constraint("PointOnObject", 22, 3, -2))
sketch1.addConstraint(Sketcher.Constraint("PointOnObject", 23, 3, -1))
sketch1.addConstraint(Sketcher.Constraint("Horizontal", 4, 3, 5, 3))
sketch1.addConstraint(Sketcher.Constraint("Horizontal", 5, 3, 6, 3))
sketch1.addConstraint(Sketcher.Constraint("Horizontal", 7, 3, 9, 3))
sketch1.addConstraint(Sketcher.Constraint("Horizontal", 9, 3, 10, 3))
sketch1.addConstraint(Sketcher.Constraint("Horizontal", 8, 3, 11, 3))
sketch1.addConstraint(Sketcher.Constraint("Horizontal", 11, 3, 12, 3))
sketch1.addConstraint(Sketcher.Constraint("Horizontal", 6, 3, 13, 3))
sketch1.addConstraint(Sketcher.Constraint("Horizontal", 13, 3, 14, 3))
sketch1.addConstraint(Sketcher.Constraint("Horizontal", 10, 3, 15, 3))
sketch1.addConstraint(Sketcher.Constraint("Horizontal", 12, 3, 16, 3))
sketch1.addConstraint(Sketcher.Constraint("Horizontal", 17, 3, 18, 3))
sketch1.addConstraint(Sketcher.Constraint("Horizontal", 18, 3, 19, 3))
sketch1.addConstraint(Sketcher.Constraint("Horizontal", 19, 3, 21, 3))
sketch1.addConstraint(Sketcher.Constraint("Horizontal", 21, 3, 22, 3))
sketch1.addConstraint(Sketcher.Constraint("Vertical", 4, 3, 7, 3))
sketch1.addConstraint(Sketcher.Constraint("Vertical", 7, 3, 8, 3))
sketch1.addConstraint(Sketcher.Constraint("Vertical", 5, 3, 9, 3))
sketch1.addConstraint(Sketcher.Constraint("Vertical", 6, 3, 10, 3))
sketch1.addConstraint(Sketcher.Constraint("Vertical", 9, 3, 11, 3))
sketch1.addConstraint(Sketcher.Constraint("Vertical", 10, 3, 12, 3))
sketch1.addConstraint(Sketcher.Constraint("Vertical", 13, 3, 15, 3))
sketch1.addConstraint(Sketcher.Constraint("Vertical", 15, 3, 16, 3))
sketch1.addConstraint(Sketcher.Constraint("Vertical", 8, 3, 17, 3))
sketch1.addConstraint(Sketcher.Constraint("Vertical", 11, 3, 18, 3))
sketch1.addConstraint(Sketcher.Constraint("Vertical", 12, 3, 19, 3))
sketch1.addConstraint(Sketcher.Constraint("Vertical", 17, 3, 20, 3))
sketch1.addConstraint(Sketcher.Constraint("Vertical", 16, 3, 21, 3))
sketch1.addConstraint(Sketcher.Constraint("Vertical", 21, 3, 23, 3))
sketch1.addConstraint(Sketcher.Constraint("Equal", 3, 0))
sketch1.addConstraint(Sketcher.Constraint("Diameter", 4, Q("0.27 in")))
sketch1.addConstraint(Sketcher.Constraint("DistanceX", 1, 1, 1, 2, Q("5 in")))
sketch1.addConstraint(Sketcher.Constraint("DistanceX", 4, 3, -1, 1, Q("2.25 in")))
sketch1.addConstraint(Sketcher.Constraint("DistanceY", -1, 1, 4, 3, Q("2.25 in")))
sketch1.addConstraint(Sketcher.Constraint("DistanceX", 5, 3, -1, 1, Q("1.75 in")))
sketch1.addConstraint(Sketcher.Constraint("DistanceX", 6, 3, -1, 1, Q("1.25 in")))
sketch1.addConstraint(Sketcher.Constraint("DistanceY", -1, 1, 7, 3, Q("1.75 in")))
sketch1.addConstraint(Sketcher.Constraint("DistanceY", -1, 1, 8, 3, Q("1.25 in")))
sketch1.addConstraint(Sketcher.Constraint("DistanceX", 13, 3, -1, 1, Q("0.75 in")))
sketch1.addConstraint(Sketcher.Constraint("DistanceY", -1, 1, 17, 3, Q("0.75 in")))
sketch1.addConstraint(Sketcher.Constraint("Diameter", 22, 10.545622))
sketch1.addConstraint(Sketcher.Constraint("Diameter", 14, 9.020616))
sketch1.setExpression("Constraints[163]", "Params.sketch1_diameter")
sketch1.setExpression("Constraints[164]", "Params.sketch1_width")
pad1 = body.newObject("PartDesign::Pad", "Pad")
pad1.Profile = sketch1
pad1.setExpression("Length", "Params.pad1_length")
pad1.Reversed = True

doc.recompute()
